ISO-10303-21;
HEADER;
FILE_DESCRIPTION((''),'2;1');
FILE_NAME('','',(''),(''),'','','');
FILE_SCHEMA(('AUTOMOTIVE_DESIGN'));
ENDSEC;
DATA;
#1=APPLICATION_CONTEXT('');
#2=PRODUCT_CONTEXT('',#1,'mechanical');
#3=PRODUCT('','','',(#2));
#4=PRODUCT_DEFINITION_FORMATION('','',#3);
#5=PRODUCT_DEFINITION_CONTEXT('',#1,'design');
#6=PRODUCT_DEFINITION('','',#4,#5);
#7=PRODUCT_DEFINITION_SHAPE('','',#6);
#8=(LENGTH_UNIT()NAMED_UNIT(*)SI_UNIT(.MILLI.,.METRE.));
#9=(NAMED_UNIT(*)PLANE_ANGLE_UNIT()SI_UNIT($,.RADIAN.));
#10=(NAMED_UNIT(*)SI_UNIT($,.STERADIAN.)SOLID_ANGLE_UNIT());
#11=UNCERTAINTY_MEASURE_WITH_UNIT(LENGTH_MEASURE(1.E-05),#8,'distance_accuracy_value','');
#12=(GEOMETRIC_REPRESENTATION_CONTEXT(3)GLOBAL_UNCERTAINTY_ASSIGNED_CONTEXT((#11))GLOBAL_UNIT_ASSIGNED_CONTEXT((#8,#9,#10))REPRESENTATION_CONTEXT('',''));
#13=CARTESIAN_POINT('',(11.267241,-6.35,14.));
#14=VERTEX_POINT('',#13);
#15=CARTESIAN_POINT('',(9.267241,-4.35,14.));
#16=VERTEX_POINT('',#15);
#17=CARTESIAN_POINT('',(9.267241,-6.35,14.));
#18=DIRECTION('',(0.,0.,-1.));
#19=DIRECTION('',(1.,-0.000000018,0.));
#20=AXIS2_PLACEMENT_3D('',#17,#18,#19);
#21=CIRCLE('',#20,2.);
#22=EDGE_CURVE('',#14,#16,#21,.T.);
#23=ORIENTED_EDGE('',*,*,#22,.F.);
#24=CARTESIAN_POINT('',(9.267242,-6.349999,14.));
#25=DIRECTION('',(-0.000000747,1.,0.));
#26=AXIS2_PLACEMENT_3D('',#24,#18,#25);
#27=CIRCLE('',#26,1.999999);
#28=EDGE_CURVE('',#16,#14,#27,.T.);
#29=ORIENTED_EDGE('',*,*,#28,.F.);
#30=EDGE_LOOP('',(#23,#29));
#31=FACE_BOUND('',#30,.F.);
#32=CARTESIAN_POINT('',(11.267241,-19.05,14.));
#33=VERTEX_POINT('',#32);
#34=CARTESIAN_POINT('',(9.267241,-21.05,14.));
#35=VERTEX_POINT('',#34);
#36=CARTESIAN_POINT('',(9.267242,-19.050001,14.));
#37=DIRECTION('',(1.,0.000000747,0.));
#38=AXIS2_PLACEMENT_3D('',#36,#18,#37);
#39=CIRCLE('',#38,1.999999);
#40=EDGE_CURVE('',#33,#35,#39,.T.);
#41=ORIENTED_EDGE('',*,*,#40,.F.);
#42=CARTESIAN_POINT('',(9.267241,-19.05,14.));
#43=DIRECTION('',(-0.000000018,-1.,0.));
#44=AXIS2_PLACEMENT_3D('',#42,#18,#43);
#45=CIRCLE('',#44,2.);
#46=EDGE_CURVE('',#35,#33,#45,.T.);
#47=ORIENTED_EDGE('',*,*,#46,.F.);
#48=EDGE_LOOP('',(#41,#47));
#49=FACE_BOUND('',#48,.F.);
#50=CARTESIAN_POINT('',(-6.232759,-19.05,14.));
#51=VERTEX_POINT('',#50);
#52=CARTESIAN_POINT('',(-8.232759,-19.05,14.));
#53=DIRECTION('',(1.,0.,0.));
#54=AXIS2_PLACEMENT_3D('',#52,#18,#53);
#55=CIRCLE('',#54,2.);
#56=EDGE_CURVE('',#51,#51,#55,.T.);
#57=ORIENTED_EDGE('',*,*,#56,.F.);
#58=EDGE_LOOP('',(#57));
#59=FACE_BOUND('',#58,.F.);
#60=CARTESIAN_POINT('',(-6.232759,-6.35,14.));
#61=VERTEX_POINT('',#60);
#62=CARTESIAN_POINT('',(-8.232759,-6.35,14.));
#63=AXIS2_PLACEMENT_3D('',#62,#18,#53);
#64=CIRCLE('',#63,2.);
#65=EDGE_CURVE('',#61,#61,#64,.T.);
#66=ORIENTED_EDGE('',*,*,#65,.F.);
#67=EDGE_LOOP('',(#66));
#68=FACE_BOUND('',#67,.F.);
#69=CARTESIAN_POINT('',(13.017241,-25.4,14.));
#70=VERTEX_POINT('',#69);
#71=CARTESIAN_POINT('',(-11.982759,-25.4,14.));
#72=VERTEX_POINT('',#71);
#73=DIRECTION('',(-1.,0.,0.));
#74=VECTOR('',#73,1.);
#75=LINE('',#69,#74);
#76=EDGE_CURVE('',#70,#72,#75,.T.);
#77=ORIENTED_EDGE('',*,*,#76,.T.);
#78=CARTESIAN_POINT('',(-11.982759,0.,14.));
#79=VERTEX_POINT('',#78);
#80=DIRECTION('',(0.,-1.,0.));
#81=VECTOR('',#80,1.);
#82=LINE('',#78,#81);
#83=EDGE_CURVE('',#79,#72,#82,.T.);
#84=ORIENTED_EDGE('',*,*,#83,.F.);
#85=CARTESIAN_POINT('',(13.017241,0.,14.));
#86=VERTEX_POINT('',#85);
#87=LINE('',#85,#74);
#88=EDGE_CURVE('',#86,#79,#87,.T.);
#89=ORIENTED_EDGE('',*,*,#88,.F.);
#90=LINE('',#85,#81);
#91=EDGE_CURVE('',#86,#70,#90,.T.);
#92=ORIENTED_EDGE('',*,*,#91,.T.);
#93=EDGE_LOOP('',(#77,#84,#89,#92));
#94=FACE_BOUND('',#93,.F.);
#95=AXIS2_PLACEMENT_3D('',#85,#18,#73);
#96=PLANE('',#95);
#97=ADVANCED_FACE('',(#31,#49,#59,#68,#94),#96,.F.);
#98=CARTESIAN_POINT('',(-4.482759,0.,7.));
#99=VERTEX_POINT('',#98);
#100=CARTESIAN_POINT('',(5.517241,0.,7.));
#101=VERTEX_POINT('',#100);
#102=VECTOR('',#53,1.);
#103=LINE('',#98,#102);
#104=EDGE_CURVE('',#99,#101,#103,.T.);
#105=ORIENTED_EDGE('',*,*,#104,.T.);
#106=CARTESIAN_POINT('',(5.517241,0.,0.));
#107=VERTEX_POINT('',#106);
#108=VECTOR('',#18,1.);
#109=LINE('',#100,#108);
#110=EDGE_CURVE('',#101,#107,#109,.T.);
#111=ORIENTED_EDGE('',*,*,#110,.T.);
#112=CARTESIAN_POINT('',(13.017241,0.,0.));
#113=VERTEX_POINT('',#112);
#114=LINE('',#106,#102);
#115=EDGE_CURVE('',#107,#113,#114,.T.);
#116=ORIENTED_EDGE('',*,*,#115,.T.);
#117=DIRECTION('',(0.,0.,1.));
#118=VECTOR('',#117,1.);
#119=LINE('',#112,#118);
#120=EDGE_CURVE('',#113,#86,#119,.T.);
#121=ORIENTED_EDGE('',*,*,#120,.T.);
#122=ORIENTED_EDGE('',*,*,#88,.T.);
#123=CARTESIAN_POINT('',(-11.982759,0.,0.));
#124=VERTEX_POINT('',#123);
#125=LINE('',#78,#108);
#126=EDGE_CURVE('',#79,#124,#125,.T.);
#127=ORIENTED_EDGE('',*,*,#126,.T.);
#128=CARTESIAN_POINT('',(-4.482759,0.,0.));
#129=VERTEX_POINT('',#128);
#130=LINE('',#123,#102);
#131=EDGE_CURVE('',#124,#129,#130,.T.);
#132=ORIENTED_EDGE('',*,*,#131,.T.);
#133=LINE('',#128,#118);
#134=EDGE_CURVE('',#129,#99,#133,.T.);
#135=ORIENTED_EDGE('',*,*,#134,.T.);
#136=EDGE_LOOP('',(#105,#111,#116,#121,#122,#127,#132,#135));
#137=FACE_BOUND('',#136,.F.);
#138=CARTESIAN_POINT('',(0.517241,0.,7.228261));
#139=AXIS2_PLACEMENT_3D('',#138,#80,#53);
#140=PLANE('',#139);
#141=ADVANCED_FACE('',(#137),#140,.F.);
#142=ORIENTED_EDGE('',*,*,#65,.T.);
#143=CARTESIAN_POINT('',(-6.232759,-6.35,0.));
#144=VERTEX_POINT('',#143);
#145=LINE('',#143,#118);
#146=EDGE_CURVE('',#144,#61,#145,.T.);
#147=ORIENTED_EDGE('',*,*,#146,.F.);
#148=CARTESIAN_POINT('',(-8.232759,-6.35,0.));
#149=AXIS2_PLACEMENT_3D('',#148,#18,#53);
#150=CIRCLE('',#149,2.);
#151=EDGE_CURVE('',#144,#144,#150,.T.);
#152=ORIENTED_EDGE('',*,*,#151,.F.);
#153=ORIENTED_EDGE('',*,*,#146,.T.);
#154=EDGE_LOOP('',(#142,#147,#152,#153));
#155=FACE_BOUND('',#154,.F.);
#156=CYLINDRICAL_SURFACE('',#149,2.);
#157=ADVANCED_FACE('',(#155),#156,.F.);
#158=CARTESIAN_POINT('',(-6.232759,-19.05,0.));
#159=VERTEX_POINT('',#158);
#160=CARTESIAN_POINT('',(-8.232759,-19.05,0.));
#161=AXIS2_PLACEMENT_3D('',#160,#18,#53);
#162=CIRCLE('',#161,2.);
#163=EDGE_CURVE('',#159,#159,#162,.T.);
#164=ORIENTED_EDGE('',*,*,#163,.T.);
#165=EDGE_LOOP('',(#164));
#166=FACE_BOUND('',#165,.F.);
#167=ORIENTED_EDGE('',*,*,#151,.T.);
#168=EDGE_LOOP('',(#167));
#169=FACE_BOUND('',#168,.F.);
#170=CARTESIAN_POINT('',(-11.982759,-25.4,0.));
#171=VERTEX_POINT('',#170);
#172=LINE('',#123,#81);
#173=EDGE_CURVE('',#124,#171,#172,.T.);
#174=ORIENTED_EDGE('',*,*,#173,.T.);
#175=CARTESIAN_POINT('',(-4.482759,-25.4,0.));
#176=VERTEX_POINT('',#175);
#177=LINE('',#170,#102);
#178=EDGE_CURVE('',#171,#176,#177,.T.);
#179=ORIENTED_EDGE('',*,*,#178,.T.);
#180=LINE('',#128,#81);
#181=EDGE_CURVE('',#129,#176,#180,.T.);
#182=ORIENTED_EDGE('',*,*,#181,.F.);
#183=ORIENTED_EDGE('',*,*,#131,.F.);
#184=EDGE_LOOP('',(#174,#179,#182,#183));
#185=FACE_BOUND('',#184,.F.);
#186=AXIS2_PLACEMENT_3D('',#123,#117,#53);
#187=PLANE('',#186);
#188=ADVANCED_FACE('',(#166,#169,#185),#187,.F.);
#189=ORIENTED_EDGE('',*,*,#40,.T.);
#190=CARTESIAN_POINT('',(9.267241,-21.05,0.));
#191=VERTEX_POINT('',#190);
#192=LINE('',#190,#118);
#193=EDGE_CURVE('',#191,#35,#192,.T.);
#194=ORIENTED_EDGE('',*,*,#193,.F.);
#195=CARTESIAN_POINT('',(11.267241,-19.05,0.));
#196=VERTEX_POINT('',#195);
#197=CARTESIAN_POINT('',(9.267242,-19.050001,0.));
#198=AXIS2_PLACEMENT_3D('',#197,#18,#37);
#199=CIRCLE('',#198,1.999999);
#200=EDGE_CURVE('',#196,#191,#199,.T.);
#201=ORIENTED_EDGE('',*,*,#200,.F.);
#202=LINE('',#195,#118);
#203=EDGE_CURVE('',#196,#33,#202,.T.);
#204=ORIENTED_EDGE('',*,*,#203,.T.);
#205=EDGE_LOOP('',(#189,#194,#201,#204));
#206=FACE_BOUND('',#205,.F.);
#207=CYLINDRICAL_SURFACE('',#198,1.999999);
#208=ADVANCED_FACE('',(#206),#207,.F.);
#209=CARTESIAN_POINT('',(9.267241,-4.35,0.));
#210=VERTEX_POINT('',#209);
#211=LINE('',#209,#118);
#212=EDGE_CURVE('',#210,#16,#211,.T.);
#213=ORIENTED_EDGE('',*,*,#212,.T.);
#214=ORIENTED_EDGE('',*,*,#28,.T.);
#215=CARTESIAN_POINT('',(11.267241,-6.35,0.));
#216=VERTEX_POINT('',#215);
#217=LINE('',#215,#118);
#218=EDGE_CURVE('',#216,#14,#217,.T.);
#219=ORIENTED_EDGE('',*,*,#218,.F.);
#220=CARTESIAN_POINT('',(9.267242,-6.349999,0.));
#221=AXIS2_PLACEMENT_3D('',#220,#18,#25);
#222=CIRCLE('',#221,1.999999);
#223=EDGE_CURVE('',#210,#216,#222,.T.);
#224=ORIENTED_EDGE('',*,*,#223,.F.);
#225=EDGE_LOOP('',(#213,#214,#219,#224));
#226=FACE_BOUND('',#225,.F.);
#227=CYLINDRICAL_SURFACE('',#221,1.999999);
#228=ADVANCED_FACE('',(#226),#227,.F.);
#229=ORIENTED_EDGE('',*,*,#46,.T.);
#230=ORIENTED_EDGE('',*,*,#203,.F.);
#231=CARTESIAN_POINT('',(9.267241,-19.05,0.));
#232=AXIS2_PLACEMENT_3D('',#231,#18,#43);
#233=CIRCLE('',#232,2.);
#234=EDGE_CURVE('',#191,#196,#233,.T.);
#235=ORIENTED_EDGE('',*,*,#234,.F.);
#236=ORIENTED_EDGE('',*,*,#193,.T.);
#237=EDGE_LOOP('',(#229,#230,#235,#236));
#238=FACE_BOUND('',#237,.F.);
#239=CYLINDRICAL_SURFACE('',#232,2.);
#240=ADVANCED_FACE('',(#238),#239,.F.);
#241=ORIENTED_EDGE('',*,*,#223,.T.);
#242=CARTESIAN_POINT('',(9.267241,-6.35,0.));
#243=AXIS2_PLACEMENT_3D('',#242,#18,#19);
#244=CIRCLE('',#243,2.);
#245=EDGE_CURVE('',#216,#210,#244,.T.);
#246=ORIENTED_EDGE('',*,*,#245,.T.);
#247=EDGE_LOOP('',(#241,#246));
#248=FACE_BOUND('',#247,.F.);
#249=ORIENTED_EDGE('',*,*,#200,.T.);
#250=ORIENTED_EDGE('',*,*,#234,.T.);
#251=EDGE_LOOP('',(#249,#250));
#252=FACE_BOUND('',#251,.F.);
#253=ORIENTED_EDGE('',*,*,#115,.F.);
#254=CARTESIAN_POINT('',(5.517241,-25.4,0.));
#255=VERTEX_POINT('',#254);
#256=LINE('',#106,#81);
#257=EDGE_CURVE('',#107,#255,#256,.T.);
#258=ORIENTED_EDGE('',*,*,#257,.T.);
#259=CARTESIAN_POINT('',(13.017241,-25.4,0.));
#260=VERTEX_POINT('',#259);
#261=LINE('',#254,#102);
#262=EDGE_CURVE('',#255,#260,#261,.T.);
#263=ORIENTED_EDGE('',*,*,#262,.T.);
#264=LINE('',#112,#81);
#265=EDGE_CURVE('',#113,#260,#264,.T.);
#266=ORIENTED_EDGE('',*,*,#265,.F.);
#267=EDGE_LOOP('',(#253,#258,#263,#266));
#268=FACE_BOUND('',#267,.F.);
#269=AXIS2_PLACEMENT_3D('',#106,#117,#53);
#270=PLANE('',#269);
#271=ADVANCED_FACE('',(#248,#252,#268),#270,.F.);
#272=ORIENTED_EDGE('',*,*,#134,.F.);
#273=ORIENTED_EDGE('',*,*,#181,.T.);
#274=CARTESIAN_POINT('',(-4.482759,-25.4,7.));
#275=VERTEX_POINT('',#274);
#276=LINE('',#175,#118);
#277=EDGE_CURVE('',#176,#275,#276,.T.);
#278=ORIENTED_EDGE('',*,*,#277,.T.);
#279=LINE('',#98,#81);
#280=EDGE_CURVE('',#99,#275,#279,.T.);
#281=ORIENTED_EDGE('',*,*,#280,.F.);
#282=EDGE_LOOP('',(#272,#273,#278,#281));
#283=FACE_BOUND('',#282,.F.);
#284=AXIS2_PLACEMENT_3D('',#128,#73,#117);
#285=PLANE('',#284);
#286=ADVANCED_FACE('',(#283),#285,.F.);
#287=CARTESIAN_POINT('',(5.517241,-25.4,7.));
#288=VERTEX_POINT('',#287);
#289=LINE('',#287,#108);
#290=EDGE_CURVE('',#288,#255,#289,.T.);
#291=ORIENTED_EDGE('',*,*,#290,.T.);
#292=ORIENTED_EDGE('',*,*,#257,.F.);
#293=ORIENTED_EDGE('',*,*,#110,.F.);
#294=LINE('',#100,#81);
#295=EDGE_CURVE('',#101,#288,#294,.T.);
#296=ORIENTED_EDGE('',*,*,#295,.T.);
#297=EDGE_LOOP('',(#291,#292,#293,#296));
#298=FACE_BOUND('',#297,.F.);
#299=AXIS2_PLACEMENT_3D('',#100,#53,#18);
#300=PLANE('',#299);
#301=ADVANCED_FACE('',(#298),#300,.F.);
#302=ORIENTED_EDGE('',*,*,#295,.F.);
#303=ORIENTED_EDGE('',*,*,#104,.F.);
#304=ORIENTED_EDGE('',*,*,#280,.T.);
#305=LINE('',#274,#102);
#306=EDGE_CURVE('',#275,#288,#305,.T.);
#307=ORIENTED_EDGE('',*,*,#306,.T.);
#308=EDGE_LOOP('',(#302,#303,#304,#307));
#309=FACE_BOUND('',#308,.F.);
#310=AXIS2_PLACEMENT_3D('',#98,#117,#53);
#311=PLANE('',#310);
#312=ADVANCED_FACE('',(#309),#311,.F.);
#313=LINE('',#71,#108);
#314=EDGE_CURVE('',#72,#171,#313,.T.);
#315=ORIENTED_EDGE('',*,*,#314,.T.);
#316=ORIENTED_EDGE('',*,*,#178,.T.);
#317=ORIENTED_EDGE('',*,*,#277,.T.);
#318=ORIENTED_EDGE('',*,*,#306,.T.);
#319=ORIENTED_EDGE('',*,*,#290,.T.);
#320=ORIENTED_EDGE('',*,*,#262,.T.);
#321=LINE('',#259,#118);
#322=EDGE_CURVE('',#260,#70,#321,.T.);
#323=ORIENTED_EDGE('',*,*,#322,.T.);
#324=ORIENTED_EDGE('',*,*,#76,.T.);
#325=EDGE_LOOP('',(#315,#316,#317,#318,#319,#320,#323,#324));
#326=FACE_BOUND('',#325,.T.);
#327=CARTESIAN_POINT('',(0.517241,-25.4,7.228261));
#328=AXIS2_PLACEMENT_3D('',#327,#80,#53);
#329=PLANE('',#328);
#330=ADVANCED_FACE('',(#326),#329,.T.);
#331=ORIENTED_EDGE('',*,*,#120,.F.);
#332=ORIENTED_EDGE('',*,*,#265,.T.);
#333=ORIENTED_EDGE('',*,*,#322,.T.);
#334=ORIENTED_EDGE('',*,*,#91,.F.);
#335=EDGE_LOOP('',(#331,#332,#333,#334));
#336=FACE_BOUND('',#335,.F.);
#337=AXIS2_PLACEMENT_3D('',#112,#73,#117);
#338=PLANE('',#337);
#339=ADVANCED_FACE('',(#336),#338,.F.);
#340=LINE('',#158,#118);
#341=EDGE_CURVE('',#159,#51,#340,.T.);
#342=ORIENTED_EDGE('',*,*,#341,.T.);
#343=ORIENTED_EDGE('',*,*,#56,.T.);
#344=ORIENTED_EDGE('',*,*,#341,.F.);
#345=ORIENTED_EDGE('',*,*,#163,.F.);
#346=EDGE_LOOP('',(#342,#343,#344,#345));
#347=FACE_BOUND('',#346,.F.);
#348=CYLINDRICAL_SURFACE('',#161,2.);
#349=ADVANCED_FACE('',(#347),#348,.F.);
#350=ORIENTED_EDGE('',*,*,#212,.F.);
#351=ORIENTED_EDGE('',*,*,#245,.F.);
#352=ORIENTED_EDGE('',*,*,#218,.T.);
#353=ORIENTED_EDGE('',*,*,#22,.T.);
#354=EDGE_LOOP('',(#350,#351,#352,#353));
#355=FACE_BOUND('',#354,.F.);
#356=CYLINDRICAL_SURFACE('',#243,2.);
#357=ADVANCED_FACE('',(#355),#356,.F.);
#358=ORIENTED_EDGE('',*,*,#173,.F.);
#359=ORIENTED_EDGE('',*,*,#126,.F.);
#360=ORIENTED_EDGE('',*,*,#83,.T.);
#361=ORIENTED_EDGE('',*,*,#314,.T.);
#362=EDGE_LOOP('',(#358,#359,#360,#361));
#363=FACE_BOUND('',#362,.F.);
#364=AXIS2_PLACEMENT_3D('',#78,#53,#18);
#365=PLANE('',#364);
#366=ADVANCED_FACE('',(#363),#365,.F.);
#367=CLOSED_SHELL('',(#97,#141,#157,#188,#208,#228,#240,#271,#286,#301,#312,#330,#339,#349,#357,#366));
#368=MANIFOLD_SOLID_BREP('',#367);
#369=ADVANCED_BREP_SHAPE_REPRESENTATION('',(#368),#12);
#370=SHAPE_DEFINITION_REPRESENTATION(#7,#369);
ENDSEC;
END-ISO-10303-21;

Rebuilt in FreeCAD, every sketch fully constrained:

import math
import FreeCAD as App
import Part
import Sketcher

V = App.Vector


def add_polygon(sketch, points):
    """Adds a closed chain of lines whose ends are joined by coincident constraints."""
    first, n = sketch.GeometryCount, len(points)
    for a, b in zip(points, points[1:] + points[:1]):
        sketch.addGeometry(Part.LineSegment(App.Vector(*a, 0), App.Vector(*b, 0)), False)
    for i in range(n):
        sketch.addConstraint(Sketcher.Constraint("Coincident", first + i, 2, first + (i + 1) % n, 1))

doc = App.newDocument("Part")
body = doc.addObject("PartDesign::Body", "Body")

# Sketch on XZ plane
sketch1 = doc.addObject("Sketcher::SketchObject", "Sketch")
body.addObject(sketch1)
sketch1.AttachmentSupport = (doc.XZ_Plane, [""])
sketch1.MapMode = "FlatFace"
add_polygon(sketch1, [(-11.982759, 14), (-11.982759, 0), (-4.482759, 0), (-4.482759, 7), (5.517241, 7), (5.517241, 0), (13.017241, 0), (13.017241, 14)])  # lines 0-7
sketch1.addConstraint([
    Sketcher.Constraint("Vertical", 0),
    Sketcher.Constraint("Horizontal", 1),
    Sketcher.Constraint("Vertical", 2),
    Sketcher.Constraint("Horizontal", 3),
    Sketcher.Constraint("Vertical", 4),
    Sketcher.Constraint("Horizontal", 5),
    Sketcher.Constraint("Vertical", 6),
    Sketcher.Constraint("Horizontal", 7),
    Sketcher.Constraint("PointOnObject", 0, 2, -1),
    Sketcher.Constraint("PointOnObject", 4, 2, -1),
    Sketcher.Constraint("Equal", 1, 5),
    Sketcher.Constraint("DistanceX", 3, 1, 3, 2, 10.0),
    Sketcher.Constraint("DistanceX", 7, 2, 7, 1, 25.0),
    Sketcher.Constraint("DistanceY", 0, 2, 0, 1, 14.0),
    Sketcher.Constraint("DistanceY", 2, 1, 2, 2, 7.0),
    Sketcher.Constraint("DistanceX", 0, 2, -1, 1, 11.982759),
])
pad1 = doc.addObject("PartDesign::Pad", "Pad")
body.addObject(pad1)
pad1.Profile = sketch1
pad1.Length = 25.4

# Sketch on XY plane
sketch2 = doc.addObject("Sketcher::SketchObject", "Sketch001")
body.addObject(sketch2)
sketch2.AttachmentSupport = (doc.XY_Plane, [""])
sketch2.MapMode = "FlatFace"
sketch2.addGeometry([
    Part.ArcOfCircle(Part.Circle(V(9.267241, -19.05, 0), V(0, 0, 1), 2), math.radians(0.000001), math.radians(269.999999)),  # 0
    Part.ArcOfCircle(Part.Circle(V(9.267242, -19.050001, 0), V(0, 0, 1), 1.999999), math.radians(-90.000043), math.radians(0.000043)),  # 1
    Part.ArcOfCircle(Part.Circle(V(9.267242, -6.349999, 0), V(0, 0, 1), 1.999999), math.radians(-0.000043), math.radians(90.000043)),  # 2
    Part.ArcOfCircle(Part.Circle(V(9.267241, -6.35, 0), V(0, 0, 1), 2), math.radians(90.000001), math.radians(359.999999)),  # 3
    Part.Circle(V(-8.232759, -6.35, 0), V(0, 0, 1), 2),  # 4
    Part.Circle(V(-8.232759, -19.05, 0), V(0, 0, 1), 2),  # 5
], False)
sketch2.addConstraint([
    Sketcher.Constraint("Tangent", 0, 1, 1, 2),
    Sketcher.Constraint("Coincident", 1, 1, 0, 2),
    Sketcher.Constraint("Tangent", 2, 1, 3, 2),
    Sketcher.Constraint("Coincident", 3, 1, 2, 2),
    Sketcher.Constraint("Equal", 1, 2),
    Sketcher.Constraint("Equal", 3, 4),
    Sketcher.Constraint("Equal", 4, 5),
    Sketcher.Constraint("Horizontal", 3, 3, 4, 3),
    Sketcher.Constraint("Horizontal", 1, 3, 5, 3),
    Sketcher.Constraint("Horizontal", 5, 3, 0, 1),
    Sketcher.Constraint("Horizontal", 4, 3, 2, 1),
    Sketcher.Constraint("Vertical", 1, 3, 2, 3),
    Sketcher.Constraint("Vertical", 4, 3, 5, 3),
    Sketcher.Constraint("Vertical", 3, 3, 1, 1),
    Sketcher.Constraint("Vertical", 1, 1, 3, 1),
    Sketcher.Constraint("Diameter", 4, 4.0),
    Sketcher.Constraint("DistanceY", 0, 3, 2, 3, 12.700002),
    Sketcher.Constraint("DistanceX", 4, 3, 3, 3, 17.5),
    Sketcher.Constraint("DistanceY", 0, 3, -1, 1, 19.05),
    Sketcher.Constraint("DistanceX", -1, 1, 0, 3, 9.267241),
])
pocket1 = doc.addObject("PartDesign::Pocket", "Pocket")
body.addObject(pocket1)
pocket1.Profile = sketch2
pocket1.Type = "ThroughAll"
pocket1.Reversed = True

doc.recompute()
